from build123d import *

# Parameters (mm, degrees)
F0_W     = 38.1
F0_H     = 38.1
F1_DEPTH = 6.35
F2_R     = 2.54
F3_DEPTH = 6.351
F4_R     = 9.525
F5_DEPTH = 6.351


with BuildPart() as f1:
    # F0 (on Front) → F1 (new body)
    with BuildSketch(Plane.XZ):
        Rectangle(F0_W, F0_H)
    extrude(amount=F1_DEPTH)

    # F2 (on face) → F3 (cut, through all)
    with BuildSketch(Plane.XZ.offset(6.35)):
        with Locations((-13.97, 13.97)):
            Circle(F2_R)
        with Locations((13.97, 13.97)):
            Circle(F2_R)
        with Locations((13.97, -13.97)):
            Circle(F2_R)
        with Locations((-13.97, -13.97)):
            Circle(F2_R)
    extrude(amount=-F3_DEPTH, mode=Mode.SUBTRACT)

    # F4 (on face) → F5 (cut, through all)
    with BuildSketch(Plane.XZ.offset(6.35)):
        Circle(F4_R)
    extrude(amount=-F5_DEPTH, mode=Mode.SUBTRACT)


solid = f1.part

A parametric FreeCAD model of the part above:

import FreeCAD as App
import Part
import Sketcher
from FreeCAD import Vector
Q = App.Units.Quantity


def add_polygon(sketch, points):
    """Adds a closed chain of lines whose ends are joined by coincident constraints."""
    first, n = sketch.GeometryCount, len(points)
    for a, b in zip(points, points[1:] + points[:1]):
        sketch.addGeometry(Part.LineSegment(App.Vector(*a, 0), App.Vector(*b, 0)), False)
    for i in range(n):
        sketch.addConstraint(Sketcher.Constraint("Coincident", first + i, 2, first + (i + 1) % n, 1))

doc = App.newDocument("Part")
body = doc.addObject("PartDesign::Body", "Body")

# Sketch on XZ plane
sketch1 = doc.addObject("Sketcher::SketchObject", "Sketch")
body.addObject(sketch1)
sketch1.AttachmentSupport = (doc.XZ_Plane, [""])
sketch1.MapMode = "FlatFace"
add_polygon(sketch1, [(-19, 19), (-19, -19), (19, -19), (19, 19)])  # lines 0-3
sketch1.addConstraint([
    Sketcher.Constraint("Vertical", 0),
    Sketcher.Constraint("Horizontal", 1),
    Sketcher.Constraint("Vertical", 2),
    Sketcher.Constraint("Horizontal", 3),
    Sketcher.Constraint("Symmetric", 0, 2, 2, 2, -1, 1),
    Sketcher.Constraint("Equal", 3, 0),
    Sketcher.Constraint("DistanceX", 1, 1, 1, 2, Q("1.5 in")),
])
pad1 = doc.addObject("PartDesign::Pad", "Pad")
body.addObject(pad1)
pad1.Profile = sketch1
pad1.Length = Q("0.25 in")

# Sketch on XZ plane
sketch2 = doc.addObject("Sketcher::SketchObject", "Sketch001")
body.addObject(sketch2)
sketch2.AttachmentSupport = (doc.XZ_Plane, [""])
sketch2.MapMode = "FlatFace"
sketch2.AttachmentOffset = App.Placement(Vector(0, 0, 0.25 * 25.4), App.Rotation())
sketch2.addGeometry([
    Part.Circle(Vector(-14, 14, 0), Vector(0, 0, 1), 2.5),
    Part.Circle(Vector(14, 14, 0), Vector(0, 0, 1), 2.5),
    Part.Circle(Vector(14, -14, 0), Vector(0, 0, 1), 2.5),
    Part.Circle(Vector(-14, -14, 0), Vector(0, 0, 1), 2.5),
], False)
sketch2.addConstraint([
    Sketcher.Constraint("Equal", 0, 1),
    Sketcher.Constraint("Equal", 1, 2),
    Sketcher.Constraint("Equal", 2, 3),
    Sketcher.Constraint("Symmetric", 0, 3, 2, 3, -1, 1),
    Sketcher.Constraint("Symmetric", 1, 3, 3, 3, -1, 1),
    Sketcher.Constraint("Symmetric", 0, 3, 1, 3, -2),
    Sketcher.Constraint("Diameter", 0, Q("0.2 in")),
    Sketcher.Constraint("DistanceX", 0, 3, 1, 3, Q("1.1 in")),
    Sketcher.Constraint("DistanceY", 2, 3, 1, 3, Q("1.1 in")),
])
pocket1 = doc.addObject("PartDesign::Pocket", "Pocket")
body.addObject(pocket1)
pocket1.Profile = sketch2
pocket1.Type = "ThroughAll"

# Sketch on XZ plane
sketch3 = doc.addObject("Sketcher::SketchObject", "Sketch002")
body.addObject(sketch3)
sketch3.AttachmentSupport = (doc.XZ_Plane, [""])
sketch3.MapMode = "FlatFace"
sketch3.AttachmentOffset = App.Placement(Vector(0, 0, 0.25 * 25.4), App.Rotation())
sketch3.addGeometry(Part.Circle(Vector(0, 0, 0), Vector(0, 0, 1), 10), False)
sketch3.addConstraint([
    Sketcher.Constraint("Coincident", 0, 3, -1, 1),
    Sketcher.Constraint("Diameter", 0, Q("0.75 in")),
])
pocket2 = doc.addObject("PartDesign::Pocket", "Pocket001")
body.addObject(pocket2)
pocket2.Profile = sketch3
pocket2.Type = "ThroughAll"

doc.recompute()
